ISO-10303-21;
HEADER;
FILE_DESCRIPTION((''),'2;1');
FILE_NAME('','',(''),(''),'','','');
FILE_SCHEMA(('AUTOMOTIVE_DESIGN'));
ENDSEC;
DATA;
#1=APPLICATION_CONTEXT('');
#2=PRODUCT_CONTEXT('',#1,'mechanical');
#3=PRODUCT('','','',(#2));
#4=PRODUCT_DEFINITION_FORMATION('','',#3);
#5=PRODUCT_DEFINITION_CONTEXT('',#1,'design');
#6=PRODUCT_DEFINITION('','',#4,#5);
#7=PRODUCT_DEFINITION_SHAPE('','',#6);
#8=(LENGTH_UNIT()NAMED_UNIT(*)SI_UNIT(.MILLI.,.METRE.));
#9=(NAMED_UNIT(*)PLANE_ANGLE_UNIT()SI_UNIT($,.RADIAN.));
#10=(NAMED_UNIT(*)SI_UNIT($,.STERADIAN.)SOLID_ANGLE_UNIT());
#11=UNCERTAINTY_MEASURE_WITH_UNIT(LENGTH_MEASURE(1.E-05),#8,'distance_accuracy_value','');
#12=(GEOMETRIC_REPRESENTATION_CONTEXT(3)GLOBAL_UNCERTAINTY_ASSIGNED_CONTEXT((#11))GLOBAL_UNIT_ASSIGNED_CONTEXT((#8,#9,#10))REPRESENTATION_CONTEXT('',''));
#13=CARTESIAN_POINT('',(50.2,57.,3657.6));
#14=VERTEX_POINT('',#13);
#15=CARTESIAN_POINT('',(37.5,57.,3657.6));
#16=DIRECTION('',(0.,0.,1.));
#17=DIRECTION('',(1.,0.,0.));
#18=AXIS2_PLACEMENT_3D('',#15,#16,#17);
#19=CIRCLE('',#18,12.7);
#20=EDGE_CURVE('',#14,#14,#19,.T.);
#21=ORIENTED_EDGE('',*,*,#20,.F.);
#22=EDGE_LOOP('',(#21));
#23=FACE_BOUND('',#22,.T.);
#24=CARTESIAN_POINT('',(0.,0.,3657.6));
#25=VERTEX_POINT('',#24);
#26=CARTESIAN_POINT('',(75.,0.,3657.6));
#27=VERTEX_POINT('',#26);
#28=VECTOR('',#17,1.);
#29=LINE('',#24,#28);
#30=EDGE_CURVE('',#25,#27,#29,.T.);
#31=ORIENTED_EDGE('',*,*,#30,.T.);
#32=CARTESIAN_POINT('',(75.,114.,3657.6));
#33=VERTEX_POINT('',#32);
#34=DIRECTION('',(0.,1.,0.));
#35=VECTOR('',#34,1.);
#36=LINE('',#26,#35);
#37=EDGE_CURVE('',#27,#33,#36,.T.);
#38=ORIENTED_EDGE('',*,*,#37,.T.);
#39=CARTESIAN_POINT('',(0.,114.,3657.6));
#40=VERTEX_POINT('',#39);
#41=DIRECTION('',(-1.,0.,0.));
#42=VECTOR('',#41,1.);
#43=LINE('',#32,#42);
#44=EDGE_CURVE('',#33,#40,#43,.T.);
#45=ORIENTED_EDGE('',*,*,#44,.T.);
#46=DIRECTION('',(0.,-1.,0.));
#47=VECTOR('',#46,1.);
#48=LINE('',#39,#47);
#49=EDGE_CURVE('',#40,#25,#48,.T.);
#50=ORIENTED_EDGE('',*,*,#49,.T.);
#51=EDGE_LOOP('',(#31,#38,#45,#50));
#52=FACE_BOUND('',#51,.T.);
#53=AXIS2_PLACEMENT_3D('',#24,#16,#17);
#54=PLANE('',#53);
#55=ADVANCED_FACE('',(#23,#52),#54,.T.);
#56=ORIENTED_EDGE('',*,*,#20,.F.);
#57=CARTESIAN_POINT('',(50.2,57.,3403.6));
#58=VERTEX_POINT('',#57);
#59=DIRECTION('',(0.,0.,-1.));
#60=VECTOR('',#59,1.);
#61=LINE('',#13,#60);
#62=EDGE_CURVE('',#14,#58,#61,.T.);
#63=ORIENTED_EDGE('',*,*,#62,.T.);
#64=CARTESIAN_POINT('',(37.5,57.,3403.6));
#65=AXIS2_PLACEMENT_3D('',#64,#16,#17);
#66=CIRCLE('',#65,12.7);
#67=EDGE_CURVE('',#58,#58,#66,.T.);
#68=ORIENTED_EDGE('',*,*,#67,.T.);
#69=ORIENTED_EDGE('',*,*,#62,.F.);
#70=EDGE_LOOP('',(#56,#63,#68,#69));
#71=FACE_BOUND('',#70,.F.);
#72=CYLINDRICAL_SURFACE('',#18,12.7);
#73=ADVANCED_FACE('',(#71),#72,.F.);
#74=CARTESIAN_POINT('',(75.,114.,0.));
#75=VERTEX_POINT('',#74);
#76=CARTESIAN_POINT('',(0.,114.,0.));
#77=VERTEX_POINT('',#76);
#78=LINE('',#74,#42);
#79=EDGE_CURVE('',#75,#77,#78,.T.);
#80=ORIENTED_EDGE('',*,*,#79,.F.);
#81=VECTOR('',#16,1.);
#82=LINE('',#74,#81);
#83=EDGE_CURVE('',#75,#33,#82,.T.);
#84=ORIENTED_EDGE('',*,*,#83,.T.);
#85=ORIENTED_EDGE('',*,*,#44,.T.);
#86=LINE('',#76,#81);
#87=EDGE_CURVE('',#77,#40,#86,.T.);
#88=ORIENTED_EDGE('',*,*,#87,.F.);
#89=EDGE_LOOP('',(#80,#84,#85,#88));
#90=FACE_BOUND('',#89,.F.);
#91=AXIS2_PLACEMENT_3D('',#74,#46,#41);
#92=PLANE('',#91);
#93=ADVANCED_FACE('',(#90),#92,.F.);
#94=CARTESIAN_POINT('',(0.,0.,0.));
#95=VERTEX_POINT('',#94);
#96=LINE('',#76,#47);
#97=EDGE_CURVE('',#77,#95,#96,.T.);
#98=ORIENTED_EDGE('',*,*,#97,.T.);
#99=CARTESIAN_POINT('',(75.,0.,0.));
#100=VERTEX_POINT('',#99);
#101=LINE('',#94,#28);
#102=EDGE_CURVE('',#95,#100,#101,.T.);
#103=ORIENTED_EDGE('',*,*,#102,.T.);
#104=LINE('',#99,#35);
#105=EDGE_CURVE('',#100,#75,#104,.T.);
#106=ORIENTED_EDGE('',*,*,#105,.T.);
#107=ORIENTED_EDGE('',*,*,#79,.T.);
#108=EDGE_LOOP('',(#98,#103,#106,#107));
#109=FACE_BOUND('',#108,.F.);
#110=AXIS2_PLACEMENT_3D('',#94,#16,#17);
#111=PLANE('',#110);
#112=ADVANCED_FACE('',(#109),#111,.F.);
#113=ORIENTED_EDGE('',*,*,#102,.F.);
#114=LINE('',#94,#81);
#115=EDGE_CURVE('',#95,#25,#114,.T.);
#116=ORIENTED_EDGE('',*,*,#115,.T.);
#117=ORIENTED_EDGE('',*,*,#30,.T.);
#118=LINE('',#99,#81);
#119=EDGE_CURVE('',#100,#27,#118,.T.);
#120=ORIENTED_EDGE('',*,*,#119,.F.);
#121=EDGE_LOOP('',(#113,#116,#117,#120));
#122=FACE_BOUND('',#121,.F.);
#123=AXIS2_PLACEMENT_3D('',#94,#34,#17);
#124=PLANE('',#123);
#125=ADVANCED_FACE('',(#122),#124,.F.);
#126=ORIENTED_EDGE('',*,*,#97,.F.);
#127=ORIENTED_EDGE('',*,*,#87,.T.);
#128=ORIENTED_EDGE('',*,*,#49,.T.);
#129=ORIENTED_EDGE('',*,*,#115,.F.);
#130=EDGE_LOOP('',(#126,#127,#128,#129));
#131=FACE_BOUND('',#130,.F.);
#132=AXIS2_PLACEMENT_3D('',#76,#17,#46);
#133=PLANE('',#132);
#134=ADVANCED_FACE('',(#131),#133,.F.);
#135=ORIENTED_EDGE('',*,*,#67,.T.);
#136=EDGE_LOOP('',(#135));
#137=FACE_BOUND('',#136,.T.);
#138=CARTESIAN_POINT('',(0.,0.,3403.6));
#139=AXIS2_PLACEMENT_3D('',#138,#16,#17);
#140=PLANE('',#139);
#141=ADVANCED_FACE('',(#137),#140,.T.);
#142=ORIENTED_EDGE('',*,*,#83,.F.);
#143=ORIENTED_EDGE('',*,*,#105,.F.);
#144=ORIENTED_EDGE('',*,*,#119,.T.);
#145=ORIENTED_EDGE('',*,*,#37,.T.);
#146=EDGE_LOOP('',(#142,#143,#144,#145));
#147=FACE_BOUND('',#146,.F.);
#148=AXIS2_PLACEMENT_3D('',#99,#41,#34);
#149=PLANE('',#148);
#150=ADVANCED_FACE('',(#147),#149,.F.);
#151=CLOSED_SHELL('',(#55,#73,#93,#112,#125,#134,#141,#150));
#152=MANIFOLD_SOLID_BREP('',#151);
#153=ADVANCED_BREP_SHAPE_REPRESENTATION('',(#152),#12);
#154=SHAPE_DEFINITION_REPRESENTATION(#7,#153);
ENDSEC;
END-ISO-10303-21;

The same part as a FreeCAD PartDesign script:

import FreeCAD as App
import Part
import Sketcher

V = App.Vector
Q = App.Units.Quantity

doc = App.newDocument("Part")
params = doc.addObject("Spreadsheet::Sheet", "Params")
for row, (alias, value) in enumerate([
    ("pad1_length", "144 in"),
    ("sketch2_diameter", "1 in"),
    ("pocket1_length", "10 in"),
], start=1):
    params.set(f"A{row}", alias)
    params.set(f"B{row}", "=" + value)
    params.setAlias(f"B{row}", alias)

body = doc.addObject("PartDesign::Body", "Body")

# Sketch on XY plane
sketch1 = body.newObject("Sketcher::SketchObject", "Sketch")
sketch1.AttachmentSupport = (doc.getObject("XY_Plane"), [""])
sketch1.MapMode = "FlatFace"
sketch1.addGeometry([
    Part.LineSegment(V(0, 114, 0), V(0, 0, 0)),
    Part.LineSegment(V(0, 0, 0), V(75, 0, 0)),
    Part.LineSegment(V(75, 0, 0), V(75, 114, 0)),
    Part.LineSegment(V(75, 114, 0), V(0, 114, 0)),
], False)
sketch1.addConstraint([
    Sketcher.Constraint("Coincident", 0, 2, 1, 1),
    Sketcher.Constraint("Coincident", 1, 2, 2, 1),
    Sketcher.Constraint("Coincident", 2, 2, 3, 1),
    Sketcher.Constraint("Coincident", 3, 2, 0, 1),
    Sketcher.Constraint("Vertical", 0),
    Sketcher.Constraint("Horizontal", 1),
    Sketcher.Constraint("Vertical", 2),
    Sketcher.Constraint("Horizontal", 3),
    Sketcher.Constraint("Coincident", 0, 2, -1, 1),
    Sketcher.Constraint("DistanceY", 0, 2, 0, 1, Q("4.4882 in")),
    Sketcher.Constraint("DistanceX", 1, 1, 1, 2, 75.0),
])
pad1 = body.newObject("PartDesign::Pad", "Pad")
pad1.Profile = sketch1
pad1.setExpression("Length", "Params.pad1_length")

# Sketch on XY plane
sketch2 = body.newObject("Sketcher::SketchObject", "Sketch001")
sketch2.AttachmentSupport = (doc.getObject("XY_Plane"), [""])
sketch2.MapMode = "FlatFace"
sketch2.AttachmentOffset = App.Placement(V(0, 0, 144 * 25.4), App.Rotation())
sketch2.addGeometry(Part.Circle(V(38, 57, 0), V(0, 0, 1), 13), False)
sketch2.addConstraint([
    Sketcher.Constraint("Diameter", 0, Q("1 in")),
    Sketcher.Constraint("DistanceY", -1, 1, 0, 3, Q("2.2441 in")),
    Sketcher.Constraint("DistanceX", -1, 1, 0, 3, 37.5),
])
sketch2.setExpression("Constraints[0]", "Params.sketch2_diameter")
pocket1 = body.newObject("PartDesign::Pocket", "Pocket")
pocket1.Profile = sketch2
pocket1.setExpression("Length", "Params.pocket1_length")

doc.recompute()
